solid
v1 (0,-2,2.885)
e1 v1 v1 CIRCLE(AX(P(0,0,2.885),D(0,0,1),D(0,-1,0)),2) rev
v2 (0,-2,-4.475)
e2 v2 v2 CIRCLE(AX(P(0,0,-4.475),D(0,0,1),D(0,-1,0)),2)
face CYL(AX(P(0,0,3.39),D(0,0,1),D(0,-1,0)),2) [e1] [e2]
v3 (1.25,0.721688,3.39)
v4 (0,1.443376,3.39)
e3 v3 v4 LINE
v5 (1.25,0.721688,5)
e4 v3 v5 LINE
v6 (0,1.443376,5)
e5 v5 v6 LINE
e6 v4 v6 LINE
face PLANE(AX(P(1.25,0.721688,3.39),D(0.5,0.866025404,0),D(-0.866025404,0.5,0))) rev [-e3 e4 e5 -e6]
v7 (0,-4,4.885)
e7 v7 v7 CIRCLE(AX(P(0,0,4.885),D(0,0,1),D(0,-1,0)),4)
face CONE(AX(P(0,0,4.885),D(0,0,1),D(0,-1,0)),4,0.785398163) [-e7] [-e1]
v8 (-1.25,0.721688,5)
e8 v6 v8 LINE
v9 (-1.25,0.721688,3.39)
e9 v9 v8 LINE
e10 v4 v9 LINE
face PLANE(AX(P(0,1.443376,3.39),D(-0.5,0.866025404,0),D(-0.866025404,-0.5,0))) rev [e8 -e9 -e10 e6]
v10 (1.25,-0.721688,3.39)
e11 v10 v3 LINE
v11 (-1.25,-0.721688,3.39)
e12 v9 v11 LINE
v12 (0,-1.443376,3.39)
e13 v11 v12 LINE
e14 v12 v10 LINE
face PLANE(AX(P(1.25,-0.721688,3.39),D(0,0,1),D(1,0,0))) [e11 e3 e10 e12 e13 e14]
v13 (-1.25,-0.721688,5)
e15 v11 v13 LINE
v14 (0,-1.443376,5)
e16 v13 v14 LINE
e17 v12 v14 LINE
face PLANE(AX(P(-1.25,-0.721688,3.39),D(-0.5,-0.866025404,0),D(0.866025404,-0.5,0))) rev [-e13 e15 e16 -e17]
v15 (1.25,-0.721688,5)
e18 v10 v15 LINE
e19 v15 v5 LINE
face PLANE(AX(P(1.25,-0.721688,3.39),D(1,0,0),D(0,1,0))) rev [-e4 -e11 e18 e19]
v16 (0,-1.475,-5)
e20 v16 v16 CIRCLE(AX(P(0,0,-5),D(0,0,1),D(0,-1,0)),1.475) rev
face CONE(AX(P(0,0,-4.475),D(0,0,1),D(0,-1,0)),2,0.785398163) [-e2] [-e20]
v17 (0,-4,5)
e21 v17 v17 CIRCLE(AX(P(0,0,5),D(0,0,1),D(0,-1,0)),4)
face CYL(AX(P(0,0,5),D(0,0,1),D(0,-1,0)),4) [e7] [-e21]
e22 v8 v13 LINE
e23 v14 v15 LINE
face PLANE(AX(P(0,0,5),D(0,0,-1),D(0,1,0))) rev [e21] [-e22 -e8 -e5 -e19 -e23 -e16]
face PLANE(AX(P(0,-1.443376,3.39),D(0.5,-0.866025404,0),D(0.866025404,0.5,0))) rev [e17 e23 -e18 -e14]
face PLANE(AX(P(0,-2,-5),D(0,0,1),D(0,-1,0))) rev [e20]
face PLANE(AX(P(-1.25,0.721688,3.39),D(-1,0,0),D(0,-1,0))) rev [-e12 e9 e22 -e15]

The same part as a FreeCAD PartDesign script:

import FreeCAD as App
import Part
import Sketcher
from FreeCAD import Vector
Q = App.Units.Quantity


def edges_at(feature, points):
    """Names of the edges that pass closest to the given points."""
    edges = feature.Shape.Edges
    near = lambda p: min(range(len(edges)), key=lambda i: edges[i].distToShape(Part.Vertex(*p))[0])
    return sorted({f"Edge{near(p) + 1}" for p in points})

doc = App.newDocument("Part")
body = doc.addObject("PartDesign::Body", "Body")

# Sketch on YZ plane
sketch1 = doc.addObject("Sketcher::SketchObject", "Sketch")
body.addObject(sketch1)
sketch1.AttachmentSupport = (doc.YZ_Plane, [""])
sketch1.MapMode = "FlatFace"
sketch1.addGeometry(Part.LineSegment(Vector(2, -5, 0), Vector(2, 3.4, 0)), False)
sketch1.addGeometry(Part.LineSegment(Vector(2, 3.4, 0), Vector(0, 3.4, 0)), False)
sketch1.addGeometry(Part.LineSegment(Vector(0, 3.4, 0), Vector(0, -5, 0)), False)
sketch1.addGeometry(Part.LineSegment(Vector(0, -5, 0), Vector(2, -5, 0)), False)
sketch1.addConstraint(Sketcher.Constraint("Coincident", 0, 2, 1, 1))
sketch1.addConstraint(Sketcher.Constraint("Coincident", 1, 2, 2, 1))
sketch1.addConstraint(Sketcher.Constraint("Coincident", 2, 2, 3, 1))
sketch1.addConstraint(Sketcher.Constraint("Coincident", 3, 2, 0, 1))
sketch1.addConstraint(Sketcher.Constraint("Vertical", 0))
sketch1.addConstraint(Sketcher.Constraint("Horizontal", 1))
sketch1.addConstraint(Sketcher.Constraint("Vertical", 2))
sketch1.addConstraint(Sketcher.Constraint("Horizontal", 3))
sketch1.addConstraint(Sketcher.Constraint("PointOnObject", 1, 2, -2))
sketch1.addConstraint(Sketcher.Constraint("DistanceX", 1, 2, 1, 1, 2.0))
sketch1.addConstraint(Sketcher.Constraint("DistanceY", 2, 2, -1, 1, 5.0))
sketch1.addConstraint(Sketcher.Constraint("DistanceY", 0, 1, 0, 2, 8.39))
revolution = doc.addObject("PartDesign::Revolution", "Revolution")
body.addObject(revolution)
revolution.Profile = sketch1
revolution.ReferenceAxis = (sketch1, ["V_Axis"])
revolution.Angle = 360
doc.recompute()

chamfer = doc.addObject("PartDesign::Chamfer", "Chamfer")
body.addObject(chamfer)
chamfer.Base = (revolution, edges_at(revolution, [(0, 2, -5)]))
chamfer.Size = 0.525

# Sketch on YZ plane
sketch2 = doc.addObject("Sketcher::SketchObject", "Sketch001")
body.addObject(sketch2)
sketch2.AttachmentSupport = (doc.YZ_Plane, [""])
sketch2.MapMode = "FlatFace"
sketch2.addGeometry(Part.LineSegment(Vector(4, 4.88, 0), Vector(4, 5, 0)), False)
sketch2.addGeometry(Part.LineSegment(Vector(4, 5, 0), Vector(0, 5, 0)), False)
sketch2.addGeometry(Part.LineSegment(Vector(0, 5, 0), Vector(0, 2.7, 0)), False)
sketch2.addGeometry(Part.LineSegment(Vector(0, 2.7, 0), Vector(1.81, 2.7, 0)), False)
sketch2.addGeometry(Part.LineSegment(Vector(1.81, 2.7, 0), Vector(4, 4.88, 0)), False)
sketch2.addConstraint(Sketcher.Constraint("Coincident", 0, 2, 1, 1))
sketch2.addConstraint(Sketcher.Constraint("Coincident", 1, 2, 2, 1))
sketch2.addConstraint(Sketcher.Constraint("Coincident", 2, 2, 3, 1))
sketch2.addConstraint(Sketcher.Constraint("Coincident", 3, 2, 4, 1))
sketch2.addConstraint(Sketcher.Constraint("Coincident", 4, 2, 0, 1))
sketch2.addConstraint(Sketcher.Constraint("Vertical", 0))
sketch2.addConstraint(Sketcher.Constraint("Horizontal", 1))
sketch2.addConstraint(Sketcher.Constraint("Vertical", 2))
sketch2.addConstraint(Sketcher.Constraint("Horizontal", 3))
sketch2.addConstraint(Sketcher.Constraint("PointOnObject", 1, 2, -2))
sketch2.addConstraint(Sketcher.Constraint("DistanceX", 1, 2, 1, 1, 4.0))
sketch2.addConstraint(Sketcher.Constraint("Angle", 4, Q("45 deg")))
sketch2.addConstraint(Sketcher.Constraint("DistanceY", 2, 2, 2, 1, 2.3))
sketch2.addConstraint(Sketcher.Constraint("DistanceY", -1, 1, 0, 2, 5.0))
sketch2.addConstraint(Sketcher.Constraint("DistanceX", 3, 1, 3, 2, 1.815))
revolution2 = doc.addObject("PartDesign::Revolution", "Revolution001")
body.addObject(revolution2)
revolution2.Profile = sketch2
revolution2.ReferenceAxis = (sketch2, ["V_Axis"])
revolution2.Angle = 360

# Sketch on XY plane
sketch3 = doc.addObject("Sketcher::SketchObject", "Sketch002")
body.addObject(sketch3)
sketch3.AttachmentSupport = (doc.XY_Plane, [""])
sketch3.MapMode = "FlatFace"
sketch3.AttachmentOffset = App.Placement(Vector(0, 0, 5), App.Rotation())
sketch3.addGeometry(Part.LineSegment(Vector(1.2, -0.7, 0), Vector(1.2, 0.7, 0)), False)
sketch3.addGeometry(Part.LineSegment(Vector(1.2, 0.7, 0), Vector(0, 1.4, 0)), False)
sketch3.addGeometry(Part.LineSegment(Vector(0, 1.4, 0), Vector(-1.2, 0.7, 0)), False)
sketch3.addGeometry(Part.LineSegment(Vector(-1.2, 0.7, 0), Vector(-1.2, -0.7, 0)), False)
sketch3.addGeometry(Part.LineSegment(Vector(-1.2, -0.7, 0), Vector(0, -1.4, 0)), False)
sketch3.addGeometry(Part.LineSegment(Vector(0, -1.4, 0), Vector(1.2, -0.7, 0)), False)
sketch3.addConstraint(Sketcher.Constraint("Coincident", 0, 2, 1, 1))
sketch3.addConstraint(Sketcher.Constraint("Coincident", 1, 2, 2, 1))
sketch3.addConstraint(Sketcher.Constraint("Coincident", 2, 2, 3, 1))
sketch3.addConstraint(Sketcher.Constraint("Coincident", 3, 2, 4, 1))
sketch3.addConstraint(Sketcher.Constraint("Coincident", 4, 2, 5, 1))
sketch3.addConstraint(Sketcher.Constraint("Coincident", 5, 2, 0, 1))
sketch3.addConstraint(Sketcher.Constraint("Vertical", 0))
sketch3.addConstraint(Sketcher.Constraint("Vertical", 3))
sketch3.addConstraint(Sketcher.Constraint("Symmetric", 0, 2, 3, 2, -1, 1))
sketch3.addConstraint(Sketcher.Constraint("Symmetric", 1, 2, 4, 2, -1, 1))
sketch3.addConstraint(Sketcher.Constraint("PointOnObject", 1, 2, -2))
sketch3.addConstraint(Sketcher.Constraint("Parallel", 2, 5))
sketch3.addConstraint(Sketcher.Constraint("Horizontal", 0, 2, 2, 2))
sketch3.addConstraint(Sketcher.Constraint("Angle", 1, Q("150 deg")))
sketch3.addConstraint(Sketcher.Constraint("DistanceX", 2, 2, 0, 2, 2.5))
sketch3.addConstraint(Sketcher.Constraint("DistanceY", 0, 1, 0, 2, 1.443376))
pocket1 = doc.addObject("PartDesign::Pocket", "Pocket")
body.addObject(pocket1)
pocket1.Profile = sketch3
pocket1.Length = 1.61

doc.recompute()
